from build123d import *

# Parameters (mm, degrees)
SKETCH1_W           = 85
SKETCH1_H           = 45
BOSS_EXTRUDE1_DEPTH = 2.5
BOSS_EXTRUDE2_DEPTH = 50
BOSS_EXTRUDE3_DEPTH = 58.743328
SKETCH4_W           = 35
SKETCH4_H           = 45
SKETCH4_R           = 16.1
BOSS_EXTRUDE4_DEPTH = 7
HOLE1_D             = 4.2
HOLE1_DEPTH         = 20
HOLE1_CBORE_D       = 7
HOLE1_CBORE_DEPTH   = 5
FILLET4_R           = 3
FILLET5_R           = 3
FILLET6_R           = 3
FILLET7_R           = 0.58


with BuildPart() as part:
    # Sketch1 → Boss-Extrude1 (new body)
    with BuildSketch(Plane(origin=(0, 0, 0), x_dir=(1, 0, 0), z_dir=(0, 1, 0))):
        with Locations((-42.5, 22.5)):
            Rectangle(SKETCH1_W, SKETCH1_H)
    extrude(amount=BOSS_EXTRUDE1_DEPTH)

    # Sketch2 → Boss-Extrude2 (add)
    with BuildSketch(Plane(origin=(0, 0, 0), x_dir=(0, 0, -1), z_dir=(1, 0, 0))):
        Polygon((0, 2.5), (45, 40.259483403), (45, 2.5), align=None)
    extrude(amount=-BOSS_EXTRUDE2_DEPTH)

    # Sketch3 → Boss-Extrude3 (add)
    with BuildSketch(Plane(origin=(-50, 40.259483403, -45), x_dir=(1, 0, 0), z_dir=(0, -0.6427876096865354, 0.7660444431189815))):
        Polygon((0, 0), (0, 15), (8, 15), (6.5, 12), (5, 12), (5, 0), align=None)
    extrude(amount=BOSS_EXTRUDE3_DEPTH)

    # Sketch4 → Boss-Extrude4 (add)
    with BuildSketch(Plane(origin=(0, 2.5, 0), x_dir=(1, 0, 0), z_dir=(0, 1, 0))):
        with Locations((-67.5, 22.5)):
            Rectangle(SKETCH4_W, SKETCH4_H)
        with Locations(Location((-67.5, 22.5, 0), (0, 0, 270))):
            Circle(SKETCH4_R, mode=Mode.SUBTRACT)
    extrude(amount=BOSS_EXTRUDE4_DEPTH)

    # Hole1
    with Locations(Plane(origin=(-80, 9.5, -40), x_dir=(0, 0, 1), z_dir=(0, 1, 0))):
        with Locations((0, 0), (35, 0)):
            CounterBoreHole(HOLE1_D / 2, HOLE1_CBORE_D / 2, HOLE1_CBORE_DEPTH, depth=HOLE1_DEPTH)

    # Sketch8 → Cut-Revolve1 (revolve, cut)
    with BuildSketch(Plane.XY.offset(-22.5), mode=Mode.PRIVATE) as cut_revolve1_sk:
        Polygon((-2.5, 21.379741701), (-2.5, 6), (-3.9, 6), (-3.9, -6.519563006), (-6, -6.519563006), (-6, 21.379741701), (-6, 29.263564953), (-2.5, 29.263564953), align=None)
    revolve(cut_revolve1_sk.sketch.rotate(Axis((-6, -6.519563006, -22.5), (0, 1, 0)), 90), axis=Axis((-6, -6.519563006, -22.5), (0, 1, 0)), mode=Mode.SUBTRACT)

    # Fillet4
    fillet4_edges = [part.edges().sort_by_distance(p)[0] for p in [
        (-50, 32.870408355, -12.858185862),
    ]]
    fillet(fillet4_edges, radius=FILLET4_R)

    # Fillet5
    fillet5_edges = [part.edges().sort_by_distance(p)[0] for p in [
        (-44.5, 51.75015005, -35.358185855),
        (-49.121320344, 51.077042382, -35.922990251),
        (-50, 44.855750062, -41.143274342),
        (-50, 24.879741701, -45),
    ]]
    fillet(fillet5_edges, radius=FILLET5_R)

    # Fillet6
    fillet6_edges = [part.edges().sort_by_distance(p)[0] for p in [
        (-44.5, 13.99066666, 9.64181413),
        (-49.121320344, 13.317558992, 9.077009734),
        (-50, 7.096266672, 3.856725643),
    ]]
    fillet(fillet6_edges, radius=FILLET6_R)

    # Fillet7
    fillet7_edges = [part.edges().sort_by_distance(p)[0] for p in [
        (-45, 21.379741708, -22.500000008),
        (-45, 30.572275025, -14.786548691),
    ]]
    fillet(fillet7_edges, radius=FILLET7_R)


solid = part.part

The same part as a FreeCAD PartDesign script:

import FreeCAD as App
import Part
import Sketcher
Q = App.Units.Quantity


def edges_at(feature, points):
    """Names of the edges that pass closest to the given points."""
    edges = feature.Shape.Edges
    near = lambda p: min(range(len(edges)), key=lambda i: edges[i].distToShape(Part.Vertex(*p))[0])
    return sorted({f"Edge{near(p) + 1}" for p in points})


def add_polygon(sketch, points):
    """Adds a closed chain of lines whose ends are joined by coincident constraints."""
    first, n = sketch.GeometryCount, len(points)
    for a, b in zip(points, points[1:] + points[:1]):
        sketch.addGeometry(Part.LineSegment(App.Vector(*a, 0), App.Vector(*b, 0)), False)
    for i in range(n):
        sketch.addConstraint(Sketcher.Constraint("Coincident", first + i, 2, first + (i + 1) % n, 1))

doc = App.newDocument("Part")
body = doc.addObject("PartDesign::Body", "Body")

# Sketch on XZ plane
sketch1 = body.newObject("Sketcher::SketchObject", "Sketch")
sketch1.AttachmentSupport = (doc.getObject("XZ_Plane"), [""])
sketch1.MapMode = "FlatFace"
add_polygon(sketch1, [(-85, -45), (-85, 0), (0, 0), (0, -45)])  # lines 0-3
sketch1.addConstraint([
    Sketcher.Constraint("Vertical", 0),
    Sketcher.Constraint("Horizontal", 1),
    Sketcher.Constraint("Vertical", 2),
    Sketcher.Constraint("Horizontal", 3),
    Sketcher.Constraint("Coincident", 1, 2, -1, 1),
    Sketcher.Constraint("DistanceX", 1, 1, 1, 2, 85.0),
    Sketcher.Constraint("DistanceY", 0, 1, 0, 2, 45.0),
])
pad1 = body.newObject("PartDesign::Pad", "Pad")
pad1.Profile = sketch1
pad1.Length = 2.5
pad1.Reversed = True

# Sketch on YZ plane
sketch2 = body.newObject("Sketcher::SketchObject", "Sketch001")
sketch2.AttachmentSupport = (doc.getObject("YZ_Plane"), [""])
sketch2.MapMode = "FlatFace"
add_polygon(sketch2, [(40, -45), (2, 0), (2, -45)])  # lines 0-2
sketch2.addConstraint([
    Sketcher.Constraint("Vertical", 1),
    Sketcher.Constraint("Horizontal", 2),
    Sketcher.Constraint("PointOnObject", 0, 2, -1),
    Sketcher.Constraint("DistanceY", 1, 2, 1, 1, 45.0),
    Sketcher.Constraint("Angle", 0, Q("130 deg")),
    Sketcher.Constraint("DistanceX", -1, 1, 0, 2, 2.5),
])
pad2 = body.newObject("PartDesign::Pad", "Pad001")
pad2.Profile = sketch2
pad2.Length = 50
pad2.Reversed = True

# Sketch on an angled plane
sketch3 = body.newObject("Sketcher::SketchObject", "Sketch002")
sketch3.Placement = App.Placement(App.Vector(-50, 40.259483, -45), App.Rotation(App.Vector(1, 0, 0), App.Vector(0, 0.766044443, 0.64278761), App.Vector(0, -0.64278761, 0.766044443), "ZXY"))
add_polygon(sketch3, [(0, 15), (0, 0), (5, 0), (5, 12), (6.5, 12), (8, 15)])  # lines 0-5
sketch3.addConstraint([
    Sketcher.Constraint("Vertical", 0),
    Sketcher.Constraint("Horizontal", 1),
    Sketcher.Constraint("Vertical", 2),
    Sketcher.Constraint("Horizontal", 3),
    Sketcher.Constraint("Horizontal", 5),
    Sketcher.Constraint("Coincident", 0, 2, -1, 1),
    Sketcher.Constraint("DistanceX", 1, 1, 1, 2, 5.0),
    Sketcher.Constraint("DistanceX", 5, 2, 5, 1, 8.0),
    Sketcher.Constraint("DistanceY", 0, 2, 0, 1, 15.0),
    Sketcher.Constraint("DistanceY", 2, 1, 2, 2, 12.0),
    Sketcher.Constraint("DistanceX", 3, 1, 3, 2, 1.5),
])
pad3 = body.newObject("PartDesign::Pad", "Pad002")
pad3.Profile = sketch3
pad3.Length = 58.743328

# Sketch on XZ plane
sketch4 = body.newObject("Sketcher::SketchObject", "Sketch003")
sketch4.AttachmentSupport = (doc.getObject("XZ_Plane"), [""])
sketch4.MapMode = "FlatFace"
sketch4.AttachmentOffset = App.Placement(App.Vector(0, 0, -2.5), App.Rotation())
add_polygon(sketch4, [(-85, -45), (-85, 0), (-50, 0), (-50, -45)])  # lines 0-3
sketch4.addGeometry(Part.Circle(App.Vector(-68, -22, 0), App.Vector(0, 0, 1), 16), False)  # 4
sketch4.addConstraint([
    Sketcher.Constraint("Vertical", 0),
    Sketcher.Constraint("Horizontal", 1),
    Sketcher.Constraint("Vertical", 2),
    Sketcher.Constraint("Horizontal", 3),
    Sketcher.Constraint("PointOnObject", 0, 2, -1),
    Sketcher.Constraint("Diameter", 4, 32.2),
    Sketcher.Constraint("DistanceX", 1, 1, 1, 2, 35.0),
    Sketcher.Constraint("DistanceY", 0, 1, 0, 2, 45.0),
    Sketcher.Constraint("DistanceX", 0, 2, -1, 1, 85.0),
    Sketcher.Constraint("DistanceX", 4, 3, -1, 1, 67.5),
    Sketcher.Constraint("DistanceY", 4, 3, -1, 1, 22.5),
])
pad4 = body.newObject("PartDesign::Pad", "Pad003")
pad4.Profile = sketch4
pad4.Length = 7
pad4.Reversed = True

# Sketch on XZ plane
sketch5 = body.newObject("Sketcher::SketchObject", "Sketch004")
sketch5.AttachmentSupport = (doc.getObject("XZ_Plane"), [""])
sketch5.MapMode = "FlatFace"
sketch5.AttachmentOffset = App.Placement(App.Vector(0, 0, -9.5), App.Rotation())
sketch5.addGeometry([
    Part.Circle(App.Vector(-80, -40, 0), App.Vector(0, 0, 1), 2.1),
    Part.Circle(App.Vector(-80, -5, 0), App.Vector(0, 0, 1), 2.1),
], False)
sketch5.addConstraint([
    Sketcher.Constraint("Equal", 0, 1),
    Sketcher.Constraint("Vertical", 0, 3, 1, 3),
    Sketcher.Constraint("Diameter", 0, 4.2),
    Sketcher.Constraint("DistanceX", 0, 3, -1, 1, 80.0),
    Sketcher.Constraint("DistanceY", 0, 3, -1, 1, 40.0),
    Sketcher.Constraint("DistanceY", 1, 3, -1, 1, 5.0),
])
doc.recompute()
hole = body.newObject("PartDesign::Hole", "Hole")
hole.Profile = sketch5
hole.ThreadType = "None"
hole.Diameter = 4.2
hole.DepthType = "Dimension"
hole.Depth = 20
hole.DrillPoint = "Flat"
hole.HoleCutType = "Counterbore"
hole.HoleCutDiameter = 7
hole.HoleCutDepth = 5
hole.Reversed = True

# Sketch on XY plane
sketch6 = body.newObject("Sketcher::SketchObject", "Sketch005")
sketch6.AttachmentSupport = (doc.getObject("XY_Plane"), [""])
sketch6.MapMode = "FlatFace"
sketch6.AttachmentOffset = App.Placement(App.Vector(0, 0, -22.5), App.Rotation())
add_polygon(sketch6, [(-2.5, 6), (-2.5, 29.3), (-6, 29.3), (-6, -6.5), (-3.9, -6.5), (-3.9, 6)])  # lines 0-5
sketch6.addGeometry(Part.LineSegment(App.Vector(-6, -6.5, 0), App.Vector(-6, 29.3, 0)), True)  # axis
sketch6.addConstraint([
    Sketcher.Constraint("Vertical", 0),
    Sketcher.Constraint("Horizontal", 1),
    Sketcher.Constraint("Vertical", 2),
    Sketcher.Constraint("Horizontal", 3),
    Sketcher.Constraint("Vertical", 4),
    Sketcher.Constraint("Horizontal", 5),
    Sketcher.Constraint("Vertical", 6),
    Sketcher.Constraint("Coincident", 6, 1, 2, 2),
    Sketcher.Constraint("Horizontal", 0, 2, 6, 2),
    Sketcher.Constraint("DistanceX", 1, 2, 1, 1, 3.5),
    Sketcher.Constraint("DistanceX", 3, 1, 3, 2, 2.1),
    Sketcher.Constraint("DistanceX", 1, 2, -1, 1, 6.0),
    Sketcher.Constraint("DistanceY", -1, 1, 4, 2, 6.0),
    Sketcher.Constraint("DistanceY", 0, 1, 0, 2, 23.263565),
    Sketcher.Constraint("DistanceY", 2, 2, 2, 1, 35.783128),
])
groove = body.newObject("PartDesign::Groove", "Groove")
groove.Profile = sketch6
groove.ReferenceAxis = (sketch6, ["Axis0"])
groove.Angle = 360
doc.recompute()

fillet = body.newObject("PartDesign::Fillet", "Fillet")
fillet.Base = (groove, edges_at(groove, [(-50, 32.87, -12.858)]))
fillet.Radius = 3
doc.recompute()

fillet2 = body.newObject("PartDesign::Fillet", "Fillet001")
fillet2.Base = (fillet, edges_at(fillet, [
    (-44.5, 51.75, -35.358),
    (-49.121, 51.077, -35.923),
    (-50, 44.856, -41.143),
    (-50, 24.88, -45),
]))
fillet2.Radius = 3
doc.recompute()

fillet3 = body.newObject("PartDesign::Fillet", "Fillet002")
fillet3.Base = (fillet2, edges_at(fillet2, [(-44.5, 13.991, 9.642), (-49.121, 13.318, 9.077), (-50, 7.096, 3.857)]))
fillet3.Radius = 3
doc.recompute()

fillet4 = body.newObject("PartDesign::Fillet", "Fillet003")
fillet4.Base = (fillet3, edges_at(fillet3, [(-45, 21.38, -22.5), (-45, 30.572, -14.787)]))
fillet4.Radius = 0.58

doc.recompute()
